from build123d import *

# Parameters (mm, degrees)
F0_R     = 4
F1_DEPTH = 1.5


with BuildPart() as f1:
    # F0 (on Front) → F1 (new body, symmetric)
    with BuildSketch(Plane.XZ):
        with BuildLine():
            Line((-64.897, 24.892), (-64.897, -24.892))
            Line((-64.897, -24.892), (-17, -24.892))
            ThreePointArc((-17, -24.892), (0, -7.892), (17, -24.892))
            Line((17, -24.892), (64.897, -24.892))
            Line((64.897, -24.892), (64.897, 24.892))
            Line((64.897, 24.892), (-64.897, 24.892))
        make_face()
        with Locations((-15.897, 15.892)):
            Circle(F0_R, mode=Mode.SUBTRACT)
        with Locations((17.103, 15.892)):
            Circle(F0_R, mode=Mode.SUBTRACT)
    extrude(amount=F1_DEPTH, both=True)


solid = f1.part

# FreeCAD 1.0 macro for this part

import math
import FreeCAD as App
import Part
import Sketcher
from FreeCAD import Vector
Q = App.Units.Quantity

doc = App.newDocument("Part")
body = doc.addObject("PartDesign::Body", "Body")

# Sketch on XZ plane
sketch1 = body.newObject("Sketcher::SketchObject", "Sketch")
sketch1.AttachmentSupport = (doc.getObject("XZ_Plane"), [""])
sketch1.MapMode = "FlatFace"
sketch1.addGeometry(Part.LineSegment(Vector(-64.9, 24.9, 0), Vector(-64.9, -24.9, 0)), False)
sketch1.addGeometry(Part.LineSegment(Vector(-64.9, -24.9, 0), Vector(-17, -24.9, 0)), False)
sketch1.addGeometry(Part.ArcOfCircle(Part.Circle(Vector(0, -24.9, 0), Vector(0, 0, 1), 17), math.radians(0), math.radians(180)), False)
sketch1.addGeometry(Part.LineSegment(Vector(17, -24.9, 0), Vector(64.9, -24.9, 0)), False)
sketch1.addGeometry(Part.LineSegment(Vector(64.9, -24.9, 0), Vector(64.9, 24.9, 0)), False)
sketch1.addGeometry(Part.LineSegment(Vector(64.9, 24.9, 0), Vector(-64.9, 24.9, 0)), False)
sketch1.addGeometry(Part.Circle(Vector(-15.9, 15.9, 0), Vector(0, 0, 1), 4), False)
sketch1.addGeometry(Part.Circle(Vector(17.1, 15.9, 0), Vector(0, 0, 1), 4), False)
sketch1.addConstraint(Sketcher.Constraint("Coincident", 0, 2, 1, 1))
sketch1.addConstraint(Sketcher.Constraint("Coincident", 1, 2, 2, 2))
sketch1.addConstraint(Sketcher.Constraint("Coincident", 2, 1, 3, 1))
sketch1.addConstraint(Sketcher.Constraint("Coincident", 3, 2, 4, 1))
sketch1.addConstraint(Sketcher.Constraint("Coincident", 4, 2, 5, 1))
sketch1.addConstraint(Sketcher.Constraint("Coincident", 5, 2, 0, 1))
sketch1.addConstraint(Sketcher.Constraint("Vertical", 0))
sketch1.addConstraint(Sketcher.Constraint("Horizontal", 1))
sketch1.addConstraint(Sketcher.Constraint("Horizontal", 3))
sketch1.addConstraint(Sketcher.Constraint("Vertical", 4))
sketch1.addConstraint(Sketcher.Constraint("Horizontal", 5))
sketch1.addConstraint(Sketcher.Constraint("Equal", 6, 7))
sketch1.addConstraint(Sketcher.Constraint("Symmetric", 0, 2, 4, 2, -1, 1))
sketch1.addConstraint(Sketcher.Constraint("Symmetric", 1, 2, 2, 1, -2))
sketch1.addConstraint(Sketcher.Constraint("Horizontal", 6, 3, 7, 3))
sketch1.addConstraint(Sketcher.Constraint("Horizontal", 2, 3, 0, 2))
sketch1.addConstraint(Sketcher.Constraint("Diameter", 6, Q("8 mm")))
sketch1.addConstraint(Sketcher.Constraint("Radius", 2, Q("17 mm")))
sketch1.addConstraint(Sketcher.Constraint("DistanceX", 6, 3, 7, 3, Q("33 mm")))
sketch1.addConstraint(Sketcher.Constraint("DistanceX", 0, 2, 6, 3, Q("49 mm")))
sketch1.addConstraint(Sketcher.Constraint("DistanceY", 7, 3, 4, 2, Q("9 mm")))
sketch1.addConstraint(Sketcher.Constraint("DistanceX", 1, 1, 1, 2, Q("47.897 mm")))
sketch1.addConstraint(Sketcher.Constraint("DistanceY", 0, 2, 0, 1, Q("49.784 mm")))
pad1 = body.newObject("PartDesign::Pad", "Pad")
pad1.Profile = sketch1
pad1.Length = 3
pad1.Midplane = True

doc.recompute()
